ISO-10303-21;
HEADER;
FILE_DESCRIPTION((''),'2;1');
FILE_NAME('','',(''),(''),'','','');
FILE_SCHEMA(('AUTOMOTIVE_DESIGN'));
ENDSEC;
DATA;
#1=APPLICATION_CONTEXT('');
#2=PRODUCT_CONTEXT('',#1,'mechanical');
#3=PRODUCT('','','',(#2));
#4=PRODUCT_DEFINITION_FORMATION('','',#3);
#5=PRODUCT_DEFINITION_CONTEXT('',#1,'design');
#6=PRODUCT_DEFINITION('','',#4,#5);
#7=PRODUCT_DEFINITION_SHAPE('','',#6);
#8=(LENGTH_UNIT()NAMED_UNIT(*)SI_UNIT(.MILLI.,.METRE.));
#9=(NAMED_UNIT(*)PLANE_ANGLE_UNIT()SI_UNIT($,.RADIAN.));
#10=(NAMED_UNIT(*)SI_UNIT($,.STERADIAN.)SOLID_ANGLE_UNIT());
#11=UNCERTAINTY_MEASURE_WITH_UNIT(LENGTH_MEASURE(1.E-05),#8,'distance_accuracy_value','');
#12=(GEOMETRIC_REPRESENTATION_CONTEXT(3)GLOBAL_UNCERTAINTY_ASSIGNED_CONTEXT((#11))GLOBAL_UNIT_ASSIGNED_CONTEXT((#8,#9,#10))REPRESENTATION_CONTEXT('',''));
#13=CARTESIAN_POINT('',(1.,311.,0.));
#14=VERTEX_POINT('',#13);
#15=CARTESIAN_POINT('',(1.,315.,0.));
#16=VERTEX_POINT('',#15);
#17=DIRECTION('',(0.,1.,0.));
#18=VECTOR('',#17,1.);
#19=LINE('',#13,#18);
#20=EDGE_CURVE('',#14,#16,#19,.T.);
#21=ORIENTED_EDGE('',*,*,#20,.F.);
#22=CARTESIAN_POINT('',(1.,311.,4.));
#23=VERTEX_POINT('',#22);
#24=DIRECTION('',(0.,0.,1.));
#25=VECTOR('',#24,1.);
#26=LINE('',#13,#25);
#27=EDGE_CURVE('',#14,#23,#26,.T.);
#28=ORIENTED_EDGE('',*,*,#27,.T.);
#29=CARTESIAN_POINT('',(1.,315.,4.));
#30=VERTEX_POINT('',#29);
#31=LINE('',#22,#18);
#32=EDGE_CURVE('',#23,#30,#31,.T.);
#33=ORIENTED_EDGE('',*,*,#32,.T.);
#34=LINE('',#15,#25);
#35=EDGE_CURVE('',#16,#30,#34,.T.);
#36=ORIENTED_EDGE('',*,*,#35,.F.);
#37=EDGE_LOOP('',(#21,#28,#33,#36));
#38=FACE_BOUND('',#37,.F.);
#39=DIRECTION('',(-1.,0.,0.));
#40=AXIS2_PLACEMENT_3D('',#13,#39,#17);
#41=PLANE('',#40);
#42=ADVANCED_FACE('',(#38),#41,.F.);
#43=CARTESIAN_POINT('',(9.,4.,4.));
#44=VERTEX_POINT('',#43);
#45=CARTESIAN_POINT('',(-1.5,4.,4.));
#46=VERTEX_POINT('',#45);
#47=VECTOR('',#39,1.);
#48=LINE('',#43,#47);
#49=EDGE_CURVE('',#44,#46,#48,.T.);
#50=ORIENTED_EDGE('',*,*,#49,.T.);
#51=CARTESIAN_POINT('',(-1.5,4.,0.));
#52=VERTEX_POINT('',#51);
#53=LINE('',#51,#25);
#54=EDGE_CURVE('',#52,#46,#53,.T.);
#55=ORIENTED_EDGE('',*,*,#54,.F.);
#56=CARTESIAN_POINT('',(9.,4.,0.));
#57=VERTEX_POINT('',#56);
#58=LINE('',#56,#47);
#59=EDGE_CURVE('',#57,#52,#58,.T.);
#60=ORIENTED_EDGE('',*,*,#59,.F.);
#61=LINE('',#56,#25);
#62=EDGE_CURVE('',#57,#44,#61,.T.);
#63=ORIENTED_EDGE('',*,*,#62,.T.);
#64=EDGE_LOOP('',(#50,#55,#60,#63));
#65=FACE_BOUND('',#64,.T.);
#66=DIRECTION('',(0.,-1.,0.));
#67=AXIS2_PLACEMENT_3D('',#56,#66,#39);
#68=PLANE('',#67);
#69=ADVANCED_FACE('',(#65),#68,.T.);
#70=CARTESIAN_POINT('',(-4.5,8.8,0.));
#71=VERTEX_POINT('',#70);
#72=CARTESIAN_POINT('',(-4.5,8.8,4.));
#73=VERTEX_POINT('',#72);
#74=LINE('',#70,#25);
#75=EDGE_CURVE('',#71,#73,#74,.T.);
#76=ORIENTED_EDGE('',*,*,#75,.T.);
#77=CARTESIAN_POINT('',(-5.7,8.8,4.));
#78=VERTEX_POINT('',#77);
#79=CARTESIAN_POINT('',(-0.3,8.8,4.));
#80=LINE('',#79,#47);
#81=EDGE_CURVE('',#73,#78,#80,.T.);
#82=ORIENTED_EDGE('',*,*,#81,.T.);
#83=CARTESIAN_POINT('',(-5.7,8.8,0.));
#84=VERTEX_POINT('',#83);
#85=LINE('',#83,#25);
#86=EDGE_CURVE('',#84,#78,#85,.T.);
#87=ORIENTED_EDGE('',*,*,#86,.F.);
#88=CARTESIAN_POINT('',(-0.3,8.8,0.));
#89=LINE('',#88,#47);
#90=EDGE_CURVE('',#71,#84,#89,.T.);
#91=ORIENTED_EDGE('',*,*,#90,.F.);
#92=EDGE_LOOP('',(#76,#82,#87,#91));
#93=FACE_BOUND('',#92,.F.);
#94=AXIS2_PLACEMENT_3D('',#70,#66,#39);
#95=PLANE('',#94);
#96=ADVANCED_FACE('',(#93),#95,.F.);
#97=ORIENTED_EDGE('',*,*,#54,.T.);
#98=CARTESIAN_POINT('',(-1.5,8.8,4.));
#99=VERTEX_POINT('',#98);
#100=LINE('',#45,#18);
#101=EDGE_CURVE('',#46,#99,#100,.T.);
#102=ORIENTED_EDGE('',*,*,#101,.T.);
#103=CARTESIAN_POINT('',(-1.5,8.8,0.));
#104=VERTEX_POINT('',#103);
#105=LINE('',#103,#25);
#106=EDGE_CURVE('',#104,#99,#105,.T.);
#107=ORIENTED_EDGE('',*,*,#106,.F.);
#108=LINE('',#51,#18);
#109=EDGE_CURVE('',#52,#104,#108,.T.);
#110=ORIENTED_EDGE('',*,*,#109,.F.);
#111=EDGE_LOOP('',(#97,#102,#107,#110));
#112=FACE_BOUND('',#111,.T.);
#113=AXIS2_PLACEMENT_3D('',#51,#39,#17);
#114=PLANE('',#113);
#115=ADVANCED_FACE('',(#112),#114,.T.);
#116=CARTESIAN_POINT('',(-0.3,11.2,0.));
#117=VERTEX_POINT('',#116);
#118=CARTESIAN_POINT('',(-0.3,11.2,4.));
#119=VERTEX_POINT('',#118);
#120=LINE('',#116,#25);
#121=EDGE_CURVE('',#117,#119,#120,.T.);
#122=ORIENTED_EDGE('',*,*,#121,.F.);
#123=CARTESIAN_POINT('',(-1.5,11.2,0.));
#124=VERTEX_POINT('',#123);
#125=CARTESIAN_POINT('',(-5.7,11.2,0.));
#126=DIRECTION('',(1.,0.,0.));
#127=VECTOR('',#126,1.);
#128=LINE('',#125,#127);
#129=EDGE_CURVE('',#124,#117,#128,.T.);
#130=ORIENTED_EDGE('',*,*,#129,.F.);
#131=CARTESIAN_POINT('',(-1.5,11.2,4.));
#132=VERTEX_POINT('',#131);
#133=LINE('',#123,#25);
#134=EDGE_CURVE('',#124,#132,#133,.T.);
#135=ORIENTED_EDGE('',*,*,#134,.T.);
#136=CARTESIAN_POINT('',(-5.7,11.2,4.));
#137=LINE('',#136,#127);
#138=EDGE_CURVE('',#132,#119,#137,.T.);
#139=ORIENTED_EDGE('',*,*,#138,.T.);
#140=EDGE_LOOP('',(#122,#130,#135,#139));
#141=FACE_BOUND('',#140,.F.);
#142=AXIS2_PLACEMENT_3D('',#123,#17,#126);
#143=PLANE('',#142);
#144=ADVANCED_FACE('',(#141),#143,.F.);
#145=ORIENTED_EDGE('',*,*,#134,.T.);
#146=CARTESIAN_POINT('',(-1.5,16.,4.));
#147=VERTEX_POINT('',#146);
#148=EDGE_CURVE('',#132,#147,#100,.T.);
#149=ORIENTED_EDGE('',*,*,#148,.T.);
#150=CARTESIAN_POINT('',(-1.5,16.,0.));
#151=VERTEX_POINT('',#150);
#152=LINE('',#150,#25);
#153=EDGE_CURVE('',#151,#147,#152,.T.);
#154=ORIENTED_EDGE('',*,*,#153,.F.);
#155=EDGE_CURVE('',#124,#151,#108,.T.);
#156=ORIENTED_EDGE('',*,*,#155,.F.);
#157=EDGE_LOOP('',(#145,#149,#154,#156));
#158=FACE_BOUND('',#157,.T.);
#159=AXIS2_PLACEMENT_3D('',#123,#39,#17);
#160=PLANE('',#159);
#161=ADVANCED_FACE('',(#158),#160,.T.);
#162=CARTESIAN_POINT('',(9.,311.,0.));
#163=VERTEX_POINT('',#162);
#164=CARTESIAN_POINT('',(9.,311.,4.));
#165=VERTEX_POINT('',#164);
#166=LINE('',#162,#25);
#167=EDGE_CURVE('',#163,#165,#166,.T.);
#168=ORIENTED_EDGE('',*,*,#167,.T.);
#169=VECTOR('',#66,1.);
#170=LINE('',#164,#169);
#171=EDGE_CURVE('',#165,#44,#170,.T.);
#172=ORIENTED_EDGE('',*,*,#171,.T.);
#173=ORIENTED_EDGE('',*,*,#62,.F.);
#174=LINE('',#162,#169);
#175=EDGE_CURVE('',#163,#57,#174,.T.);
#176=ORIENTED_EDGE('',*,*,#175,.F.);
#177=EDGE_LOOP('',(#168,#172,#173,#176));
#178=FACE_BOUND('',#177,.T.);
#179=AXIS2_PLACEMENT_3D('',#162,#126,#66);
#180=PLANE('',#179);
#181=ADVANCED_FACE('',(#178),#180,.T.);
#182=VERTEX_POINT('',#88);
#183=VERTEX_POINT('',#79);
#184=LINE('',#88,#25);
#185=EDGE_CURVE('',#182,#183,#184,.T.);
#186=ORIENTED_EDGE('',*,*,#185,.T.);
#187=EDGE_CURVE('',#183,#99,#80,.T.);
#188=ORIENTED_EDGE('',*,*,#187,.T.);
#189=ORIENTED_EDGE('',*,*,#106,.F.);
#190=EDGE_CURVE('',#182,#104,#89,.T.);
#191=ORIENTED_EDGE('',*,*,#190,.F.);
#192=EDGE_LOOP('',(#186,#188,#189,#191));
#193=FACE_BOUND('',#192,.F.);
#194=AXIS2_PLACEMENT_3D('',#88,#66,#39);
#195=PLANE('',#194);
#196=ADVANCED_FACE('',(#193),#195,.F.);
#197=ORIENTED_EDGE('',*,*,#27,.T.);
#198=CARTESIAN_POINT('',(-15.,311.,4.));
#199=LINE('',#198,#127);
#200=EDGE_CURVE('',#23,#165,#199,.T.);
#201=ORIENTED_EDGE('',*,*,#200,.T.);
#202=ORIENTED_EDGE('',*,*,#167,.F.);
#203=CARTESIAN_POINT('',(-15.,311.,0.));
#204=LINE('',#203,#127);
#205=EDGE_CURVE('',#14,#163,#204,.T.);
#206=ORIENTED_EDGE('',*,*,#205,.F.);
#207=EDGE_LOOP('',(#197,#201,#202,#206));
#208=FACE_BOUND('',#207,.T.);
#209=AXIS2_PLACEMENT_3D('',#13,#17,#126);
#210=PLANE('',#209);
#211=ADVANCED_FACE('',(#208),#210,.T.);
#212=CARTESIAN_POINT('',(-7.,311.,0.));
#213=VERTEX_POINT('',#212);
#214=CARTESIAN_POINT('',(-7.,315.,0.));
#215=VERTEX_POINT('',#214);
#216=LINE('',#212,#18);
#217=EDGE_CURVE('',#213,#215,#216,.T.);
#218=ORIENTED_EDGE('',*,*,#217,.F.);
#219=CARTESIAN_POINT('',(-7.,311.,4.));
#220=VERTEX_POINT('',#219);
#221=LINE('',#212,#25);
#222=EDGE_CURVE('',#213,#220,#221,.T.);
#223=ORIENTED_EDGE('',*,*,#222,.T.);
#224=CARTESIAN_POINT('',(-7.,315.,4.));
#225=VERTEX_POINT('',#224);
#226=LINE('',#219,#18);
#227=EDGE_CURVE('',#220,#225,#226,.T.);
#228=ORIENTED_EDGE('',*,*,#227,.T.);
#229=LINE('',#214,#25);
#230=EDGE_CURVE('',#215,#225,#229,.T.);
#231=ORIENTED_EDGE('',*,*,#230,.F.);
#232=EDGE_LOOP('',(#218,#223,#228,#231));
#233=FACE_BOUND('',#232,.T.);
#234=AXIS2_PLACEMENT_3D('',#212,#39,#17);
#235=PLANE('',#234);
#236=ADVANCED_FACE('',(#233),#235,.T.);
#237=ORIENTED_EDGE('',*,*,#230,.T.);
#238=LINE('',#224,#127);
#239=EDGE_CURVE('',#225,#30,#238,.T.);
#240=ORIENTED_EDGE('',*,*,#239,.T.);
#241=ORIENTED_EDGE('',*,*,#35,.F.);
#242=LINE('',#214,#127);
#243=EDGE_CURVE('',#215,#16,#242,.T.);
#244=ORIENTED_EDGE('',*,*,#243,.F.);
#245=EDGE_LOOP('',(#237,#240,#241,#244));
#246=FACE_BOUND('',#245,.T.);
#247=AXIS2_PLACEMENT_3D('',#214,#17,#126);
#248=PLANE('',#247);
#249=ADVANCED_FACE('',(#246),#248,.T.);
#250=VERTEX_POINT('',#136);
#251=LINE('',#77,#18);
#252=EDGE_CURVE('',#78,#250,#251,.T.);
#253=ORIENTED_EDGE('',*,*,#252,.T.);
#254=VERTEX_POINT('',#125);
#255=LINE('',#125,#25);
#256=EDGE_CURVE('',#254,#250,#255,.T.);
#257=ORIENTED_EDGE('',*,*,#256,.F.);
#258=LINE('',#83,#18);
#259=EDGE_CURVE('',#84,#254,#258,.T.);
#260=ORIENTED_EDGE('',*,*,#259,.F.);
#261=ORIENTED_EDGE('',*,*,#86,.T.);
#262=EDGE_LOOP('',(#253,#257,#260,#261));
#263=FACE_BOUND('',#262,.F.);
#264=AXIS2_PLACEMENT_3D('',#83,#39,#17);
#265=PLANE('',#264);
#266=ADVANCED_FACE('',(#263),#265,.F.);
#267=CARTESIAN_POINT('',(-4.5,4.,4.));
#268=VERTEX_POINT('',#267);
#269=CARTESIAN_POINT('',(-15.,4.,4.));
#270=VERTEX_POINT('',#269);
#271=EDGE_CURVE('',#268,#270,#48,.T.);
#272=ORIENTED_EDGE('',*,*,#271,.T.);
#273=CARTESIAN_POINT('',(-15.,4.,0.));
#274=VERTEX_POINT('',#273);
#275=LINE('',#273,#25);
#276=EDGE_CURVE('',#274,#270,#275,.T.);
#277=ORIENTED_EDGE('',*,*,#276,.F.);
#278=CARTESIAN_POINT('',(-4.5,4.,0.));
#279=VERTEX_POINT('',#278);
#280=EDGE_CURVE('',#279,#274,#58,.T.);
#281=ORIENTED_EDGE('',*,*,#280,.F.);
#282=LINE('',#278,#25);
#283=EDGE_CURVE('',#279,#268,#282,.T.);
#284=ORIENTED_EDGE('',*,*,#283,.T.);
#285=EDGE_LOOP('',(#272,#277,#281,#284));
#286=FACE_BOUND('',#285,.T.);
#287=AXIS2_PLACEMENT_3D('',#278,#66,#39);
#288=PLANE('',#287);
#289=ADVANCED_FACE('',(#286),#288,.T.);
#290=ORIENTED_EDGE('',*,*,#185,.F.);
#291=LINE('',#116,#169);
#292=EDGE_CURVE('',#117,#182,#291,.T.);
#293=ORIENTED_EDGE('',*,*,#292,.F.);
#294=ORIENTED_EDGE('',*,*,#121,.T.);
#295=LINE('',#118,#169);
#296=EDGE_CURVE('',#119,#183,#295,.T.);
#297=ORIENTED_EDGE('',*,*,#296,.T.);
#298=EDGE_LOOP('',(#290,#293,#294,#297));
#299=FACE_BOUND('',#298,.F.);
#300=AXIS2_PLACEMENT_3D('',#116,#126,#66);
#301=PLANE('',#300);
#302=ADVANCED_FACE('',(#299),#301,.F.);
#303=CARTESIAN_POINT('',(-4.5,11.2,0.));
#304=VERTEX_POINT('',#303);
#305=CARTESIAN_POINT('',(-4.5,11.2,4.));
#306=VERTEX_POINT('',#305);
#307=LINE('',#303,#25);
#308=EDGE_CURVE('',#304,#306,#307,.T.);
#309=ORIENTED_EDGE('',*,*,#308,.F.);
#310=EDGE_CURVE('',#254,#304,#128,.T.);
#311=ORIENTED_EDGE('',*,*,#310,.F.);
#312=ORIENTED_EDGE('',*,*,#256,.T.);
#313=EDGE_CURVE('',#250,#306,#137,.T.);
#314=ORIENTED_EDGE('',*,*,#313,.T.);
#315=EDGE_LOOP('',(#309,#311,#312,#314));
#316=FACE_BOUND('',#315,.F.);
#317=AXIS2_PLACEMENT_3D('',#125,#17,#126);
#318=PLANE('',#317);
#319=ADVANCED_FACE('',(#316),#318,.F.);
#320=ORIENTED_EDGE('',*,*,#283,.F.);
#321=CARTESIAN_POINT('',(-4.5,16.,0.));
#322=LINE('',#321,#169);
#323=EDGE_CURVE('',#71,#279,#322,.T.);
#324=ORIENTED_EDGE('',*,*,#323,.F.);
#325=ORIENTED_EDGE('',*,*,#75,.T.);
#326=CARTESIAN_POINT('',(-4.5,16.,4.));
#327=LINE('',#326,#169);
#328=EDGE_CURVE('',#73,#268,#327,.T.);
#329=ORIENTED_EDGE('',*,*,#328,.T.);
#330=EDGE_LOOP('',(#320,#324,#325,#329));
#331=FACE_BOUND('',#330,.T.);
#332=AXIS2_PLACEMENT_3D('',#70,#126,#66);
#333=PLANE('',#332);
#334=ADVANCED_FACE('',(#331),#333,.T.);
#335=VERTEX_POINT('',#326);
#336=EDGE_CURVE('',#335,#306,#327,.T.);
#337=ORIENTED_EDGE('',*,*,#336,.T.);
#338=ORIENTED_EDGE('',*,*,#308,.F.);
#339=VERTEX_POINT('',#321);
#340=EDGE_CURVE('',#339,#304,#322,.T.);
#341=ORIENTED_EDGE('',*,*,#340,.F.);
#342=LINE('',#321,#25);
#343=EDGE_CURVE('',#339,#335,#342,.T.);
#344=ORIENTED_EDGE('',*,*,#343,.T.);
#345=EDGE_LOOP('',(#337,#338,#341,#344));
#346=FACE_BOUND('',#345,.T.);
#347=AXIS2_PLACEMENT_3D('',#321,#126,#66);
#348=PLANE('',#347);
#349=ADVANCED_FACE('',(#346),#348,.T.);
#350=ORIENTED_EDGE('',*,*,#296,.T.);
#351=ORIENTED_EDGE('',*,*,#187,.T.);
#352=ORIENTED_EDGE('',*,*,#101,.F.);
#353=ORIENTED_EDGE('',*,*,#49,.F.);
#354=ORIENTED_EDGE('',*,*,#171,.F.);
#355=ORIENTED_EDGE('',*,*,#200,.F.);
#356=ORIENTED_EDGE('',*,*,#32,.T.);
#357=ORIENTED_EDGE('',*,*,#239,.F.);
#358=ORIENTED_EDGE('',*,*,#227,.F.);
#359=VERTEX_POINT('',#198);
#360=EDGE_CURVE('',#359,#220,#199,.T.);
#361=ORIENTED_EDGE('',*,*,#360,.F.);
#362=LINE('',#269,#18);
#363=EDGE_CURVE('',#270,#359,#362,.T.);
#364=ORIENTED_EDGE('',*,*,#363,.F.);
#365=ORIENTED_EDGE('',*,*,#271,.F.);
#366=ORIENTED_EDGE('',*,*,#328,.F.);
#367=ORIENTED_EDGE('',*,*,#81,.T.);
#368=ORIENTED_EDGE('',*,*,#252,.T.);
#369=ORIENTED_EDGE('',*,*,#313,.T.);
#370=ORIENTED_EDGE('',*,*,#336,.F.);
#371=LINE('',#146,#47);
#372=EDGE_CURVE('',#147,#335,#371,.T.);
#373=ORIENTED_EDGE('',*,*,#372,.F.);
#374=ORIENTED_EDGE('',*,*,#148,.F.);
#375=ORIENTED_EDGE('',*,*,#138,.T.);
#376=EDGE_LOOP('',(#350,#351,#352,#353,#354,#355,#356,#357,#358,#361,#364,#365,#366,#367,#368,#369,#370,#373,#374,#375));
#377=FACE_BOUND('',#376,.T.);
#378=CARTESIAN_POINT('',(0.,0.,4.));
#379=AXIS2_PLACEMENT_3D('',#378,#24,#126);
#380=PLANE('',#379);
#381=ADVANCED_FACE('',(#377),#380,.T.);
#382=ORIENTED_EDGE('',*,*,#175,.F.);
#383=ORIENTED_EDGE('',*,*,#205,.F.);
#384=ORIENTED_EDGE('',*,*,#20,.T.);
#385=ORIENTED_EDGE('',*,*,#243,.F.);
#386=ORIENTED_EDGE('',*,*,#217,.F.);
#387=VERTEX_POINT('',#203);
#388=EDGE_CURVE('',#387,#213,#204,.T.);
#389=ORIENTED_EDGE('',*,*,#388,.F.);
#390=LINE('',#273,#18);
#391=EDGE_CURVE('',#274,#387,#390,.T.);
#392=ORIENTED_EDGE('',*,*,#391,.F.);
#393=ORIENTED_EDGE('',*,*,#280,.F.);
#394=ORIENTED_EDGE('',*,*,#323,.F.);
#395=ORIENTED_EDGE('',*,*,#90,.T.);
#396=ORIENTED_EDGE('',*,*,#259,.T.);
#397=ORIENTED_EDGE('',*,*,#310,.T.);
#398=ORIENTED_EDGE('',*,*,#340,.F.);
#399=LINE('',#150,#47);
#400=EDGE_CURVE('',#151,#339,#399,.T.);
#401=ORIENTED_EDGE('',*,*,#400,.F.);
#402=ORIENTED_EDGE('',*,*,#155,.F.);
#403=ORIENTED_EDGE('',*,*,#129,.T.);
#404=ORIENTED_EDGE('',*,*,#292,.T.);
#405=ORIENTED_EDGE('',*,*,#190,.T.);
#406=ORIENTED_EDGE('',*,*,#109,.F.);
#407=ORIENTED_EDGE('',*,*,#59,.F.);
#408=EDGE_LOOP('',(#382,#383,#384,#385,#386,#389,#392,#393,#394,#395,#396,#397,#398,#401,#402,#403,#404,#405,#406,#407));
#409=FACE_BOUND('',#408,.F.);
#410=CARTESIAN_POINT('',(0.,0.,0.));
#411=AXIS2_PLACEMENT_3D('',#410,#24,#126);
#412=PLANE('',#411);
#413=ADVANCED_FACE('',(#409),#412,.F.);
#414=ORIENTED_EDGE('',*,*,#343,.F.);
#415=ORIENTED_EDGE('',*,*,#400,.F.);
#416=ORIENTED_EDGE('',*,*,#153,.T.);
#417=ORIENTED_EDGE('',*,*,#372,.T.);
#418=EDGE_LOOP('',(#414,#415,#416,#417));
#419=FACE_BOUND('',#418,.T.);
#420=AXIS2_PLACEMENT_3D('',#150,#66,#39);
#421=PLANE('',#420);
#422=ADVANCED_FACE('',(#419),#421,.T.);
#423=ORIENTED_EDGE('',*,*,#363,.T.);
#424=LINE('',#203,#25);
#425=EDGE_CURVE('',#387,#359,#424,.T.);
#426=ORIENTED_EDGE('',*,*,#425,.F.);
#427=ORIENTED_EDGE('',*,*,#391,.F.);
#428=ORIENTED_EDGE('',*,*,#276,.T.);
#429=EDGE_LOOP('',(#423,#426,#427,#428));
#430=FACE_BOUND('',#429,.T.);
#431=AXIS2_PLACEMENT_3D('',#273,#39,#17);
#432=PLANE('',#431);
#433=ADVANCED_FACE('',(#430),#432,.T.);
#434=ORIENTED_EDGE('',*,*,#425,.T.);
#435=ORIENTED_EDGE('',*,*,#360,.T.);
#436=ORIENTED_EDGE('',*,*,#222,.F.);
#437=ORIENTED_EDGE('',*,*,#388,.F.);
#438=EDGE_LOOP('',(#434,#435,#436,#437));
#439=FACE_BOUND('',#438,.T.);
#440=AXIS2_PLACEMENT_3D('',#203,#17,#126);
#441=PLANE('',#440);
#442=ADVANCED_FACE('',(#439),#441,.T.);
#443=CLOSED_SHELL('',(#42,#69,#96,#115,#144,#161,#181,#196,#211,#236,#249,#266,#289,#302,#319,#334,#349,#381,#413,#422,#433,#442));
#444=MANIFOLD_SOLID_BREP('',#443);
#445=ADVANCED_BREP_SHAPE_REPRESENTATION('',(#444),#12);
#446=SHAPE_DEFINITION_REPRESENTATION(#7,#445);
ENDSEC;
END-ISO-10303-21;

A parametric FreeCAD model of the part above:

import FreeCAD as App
import Part
import Sketcher

V = App.Vector


def add_polygon(sketch, points):
    """Adds a closed chain of lines whose ends are joined by coincident constraints."""
    first, n = sketch.GeometryCount, len(points)
    for a, b in zip(points, points[1:] + points[:1]):
        sketch.addGeometry(Part.LineSegment(App.Vector(*a, 0), App.Vector(*b, 0)), False)
    for i in range(n):
        sketch.addConstraint(Sketcher.Constraint("Coincident", first + i, 2, first + (i + 1) % n, 1))

doc = App.newDocument("Part")
body = doc.addObject("PartDesign::Body", "Body")

# Sketch on XY plane
sketch1 = body.newObject("Sketcher::SketchObject", "Sketch")
sketch1.AttachmentSupport = (doc.getObject("XY_Plane"), [""])
sketch1.MapMode = "FlatFace"
add_polygon(sketch1, [(1, 315), (-7, 315), (-7, 311), (-15, 311), (-15, 4), (-4.5, 4), (-4.5, 8.8), (-5.7, 8.8), (-5.7, 11.2), (-4.5, 11.2), (-4.5, 16), (-1.5, 16), (-1.5, 11.2), (-0.3, 11.2), (-0.3, 8.8), (-1.5, 8.8), (-1.5, 4), (9, 4), (9, 311), (1, 311)])  # lines 0-19
sketch1.addConstraint(Sketcher.Constraint("Horizontal", 0))
sketch1.addConstraint(Sketcher.Constraint("Vertical", 1))
sketch1.addConstraint(Sketcher.Constraint("Horizontal", 2))
sketch1.addConstraint(Sketcher.Constraint("Vertical", 3))
sketch1.addConstraint(Sketcher.Constraint("Horizontal", 4))
sketch1.addConstraint(Sketcher.Constraint("Vertical", 5))
sketch1.addConstraint(Sketcher.Constraint("Horizontal", 6))
sketch1.addConstraint(Sketcher.Constraint("Vertical", 7))
sketch1.addConstraint(Sketcher.Constraint("Horizontal", 8))
sketch1.addConstraint(Sketcher.Constraint("Vertical", 9))
sketch1.addConstraint(Sketcher.Constraint("Horizontal", 10))
sketch1.addConstraint(Sketcher.Constraint("Vertical", 11))
sketch1.addConstraint(Sketcher.Constraint("Horizontal", 12))
sketch1.addConstraint(Sketcher.Constraint("Vertical", 13))
sketch1.addConstraint(Sketcher.Constraint("Horizontal", 14))
sketch1.addConstraint(Sketcher.Constraint("Vertical", 15))
sketch1.addConstraint(Sketcher.Constraint("Horizontal", 16))
sketch1.addConstraint(Sketcher.Constraint("Vertical", 17))
sketch1.addConstraint(Sketcher.Constraint("Horizontal", 18))
sketch1.addConstraint(Sketcher.Constraint("Vertical", 19))
sketch1.addConstraint(Sketcher.Constraint("Horizontal", 8, 2, 11, 2))
sketch1.addConstraint(Sketcher.Constraint("Horizontal", 6, 2, 13, 2))
sketch1.addConstraint(Sketcher.Constraint("Horizontal", 4, 2, 15, 2))
sketch1.addConstraint(Sketcher.Constraint("Horizontal", 2, 2, 17, 2))
sketch1.addConstraint(Sketcher.Constraint("Vertical", 5, 2, 8, 2))
sketch1.addConstraint(Sketcher.Constraint("Vertical", 11, 2, 14, 2))
sketch1.addConstraint(Sketcher.Constraint("Equal", 0, 2))
sketch1.addConstraint(Sketcher.Constraint("Equal", 8, 12))
sketch1.addConstraint(Sketcher.Constraint("Equal", 4, 16))
sketch1.addConstraint(Sketcher.Constraint("Equal", 2, 18))
sketch1.addConstraint(Sketcher.Constraint("Equal", 5, 9))
sketch1.addConstraint(Sketcher.Constraint("DistanceX", 0, 2, 0, 1, 8.0))
sketch1.addConstraint(Sketcher.Constraint("DistanceX", 10, 1, 10, 2, 3.0))
sketch1.addConstraint(Sketcher.Constraint("DistanceY", 7, 1, 7, 2, 2.4))
sketch1.addConstraint(Sketcher.Constraint("DistanceY", 4, 2, 9, 2, 12.0))
sketch1.addConstraint(Sketcher.Constraint("DistanceX", 7, 2, 12, 2, 5.4))
sketch1.addConstraint(Sketcher.Constraint("DistanceY", 1, 2, 1, 1, 4.0))
sketch1.addConstraint(Sketcher.Constraint("DistanceY", 3, 2, 3, 1, 307.0))
sketch1.addConstraint(Sketcher.Constraint("DistanceX", 0, 2, -1, 1, 7.0))
sketch1.addConstraint(Sketcher.Constraint("DistanceY", -1, 1, 0, 2, 315.0))
pad1 = body.newObject("PartDesign::Pad", "Pad")
pad1.Profile = sketch1
pad1.Length = 4

doc.recompute()
